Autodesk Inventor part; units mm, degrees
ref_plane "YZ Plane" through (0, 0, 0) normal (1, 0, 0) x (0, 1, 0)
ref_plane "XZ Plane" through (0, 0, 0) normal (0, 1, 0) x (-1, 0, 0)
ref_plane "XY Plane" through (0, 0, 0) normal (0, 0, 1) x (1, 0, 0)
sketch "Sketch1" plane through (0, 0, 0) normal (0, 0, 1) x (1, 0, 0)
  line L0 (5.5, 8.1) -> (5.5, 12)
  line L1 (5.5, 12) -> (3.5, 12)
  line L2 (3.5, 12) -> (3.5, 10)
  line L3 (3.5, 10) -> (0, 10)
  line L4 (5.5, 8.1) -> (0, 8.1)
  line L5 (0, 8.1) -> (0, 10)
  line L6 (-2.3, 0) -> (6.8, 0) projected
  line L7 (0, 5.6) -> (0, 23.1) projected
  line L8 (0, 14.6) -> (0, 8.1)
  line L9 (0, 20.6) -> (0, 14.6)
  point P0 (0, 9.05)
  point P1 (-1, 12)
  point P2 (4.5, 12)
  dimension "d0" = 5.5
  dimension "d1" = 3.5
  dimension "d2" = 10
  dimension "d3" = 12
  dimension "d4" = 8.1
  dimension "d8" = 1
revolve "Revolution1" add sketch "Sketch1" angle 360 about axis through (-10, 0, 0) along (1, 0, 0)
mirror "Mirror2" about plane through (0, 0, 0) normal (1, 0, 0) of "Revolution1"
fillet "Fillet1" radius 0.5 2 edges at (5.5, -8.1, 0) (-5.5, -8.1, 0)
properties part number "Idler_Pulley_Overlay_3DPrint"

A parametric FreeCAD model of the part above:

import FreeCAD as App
import Part
import Sketcher
Q = App.Units.Quantity


def edges_at(feature, points):
    """Names of the edges that pass closest to the given points."""
    edges = feature.Shape.Edges
    near = lambda p: min(range(len(edges)), key=lambda i: edges[i].distToShape(Part.Vertex(*p))[0])
    return sorted({f"Edge{near(p) + 1}" for p in points})

doc = App.newDocument("Part")
body = doc.addObject("PartDesign::Body", "Body")

sketch1 = body.newObject("Sketcher::SketchObject", "Sketch")
sketch1.AttachmentSupport = (doc.getObject("XY_Plane"), [""])
sketch1.MapMode = "FlatFace"
sketch1.addGeometry([
    Part.LineSegment(App.Vector(0, 8.1, 0), App.Vector(5.5, 8.1, 0)),
    Part.LineSegment(App.Vector(5.5, 8.1, 0), App.Vector(5.5, 12, 0)),
    Part.LineSegment(App.Vector(5.5, 12, 0), App.Vector(3.5, 12, 0)),
    Part.LineSegment(App.Vector(3.5, 12, 0), App.Vector(3.5, 10, 0)),
    Part.LineSegment(App.Vector(3.5, 10, 0), App.Vector(0, 10, 0)),
    Part.LineSegment(App.Vector(0, 10, 0), App.Vector(0, 8.1, 0)),
], False)
sketch1.addConstraint([
    Sketcher.Constraint("Coincident", 0, 2, 1, 1),
    Sketcher.Constraint("Coincident", 1, 2, 2, 1),
    Sketcher.Constraint("Coincident", 2, 2, 3, 1),
    Sketcher.Constraint("Coincident", 3, 2, 4, 1),
    Sketcher.Constraint("Coincident", 4, 2, 5, 1),
    Sketcher.Constraint("Coincident", 5, 2, 0, 1),
    Sketcher.Constraint("Horizontal", 0),
    Sketcher.Constraint("Vertical", 1),
    Sketcher.Constraint("Horizontal", 2),
    Sketcher.Constraint("Vertical", 3),
    Sketcher.Constraint("Horizontal", 4),
    Sketcher.Constraint("Vertical", 5),
    Sketcher.Constraint("PointOnObject", 4, 2, -2),
    Sketcher.Constraint("Equal", 2, 3),
    Sketcher.Constraint("DistanceX", 0, 1, 0, 2, Q("5.5 mm")),
    Sketcher.Constraint("DistanceX", 4, 2, 4, 1, Q("3.5 mm")),
    Sketcher.Constraint("DistanceY", -1, 1, 1, 2, Q("12 mm")),
    Sketcher.Constraint("DistanceY", -1, 1, 0, 2, Q("8.1 mm")),
])
revolution = body.newObject("PartDesign::Revolution", "Revolution")
revolution.Profile = sketch1
revolution.ReferenceAxis = (sketch1, ["H_Axis"])
revolution.Angle = 360
doc.recompute()

mirrored = body.newObject("PartDesign::Mirrored", "Mirrored")
mirrored.Originals = [revolution]
mirrored.MirrorPlane = (doc.getObject("YZ_Plane"), [""])
body.Tip = mirrored
doc.recompute()

fillet = body.newObject("PartDesign::Fillet", "Fillet")
fillet.Base = (mirrored, edges_at(mirrored, [(5.5, -8.1, 0), (-5.5, -8.1, 0)]))
fillet.Radius = 0.5

doc.recompute()
